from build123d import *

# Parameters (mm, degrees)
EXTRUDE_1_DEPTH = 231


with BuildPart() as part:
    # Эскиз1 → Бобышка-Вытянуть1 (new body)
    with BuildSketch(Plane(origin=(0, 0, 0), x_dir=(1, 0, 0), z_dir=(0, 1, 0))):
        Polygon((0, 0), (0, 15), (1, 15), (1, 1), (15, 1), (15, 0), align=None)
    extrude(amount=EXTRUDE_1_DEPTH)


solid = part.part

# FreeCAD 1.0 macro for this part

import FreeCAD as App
import Part
import Sketcher

V = App.Vector
Q = App.Units.Quantity


def add_polygon(sketch, points):
    """Adds a closed chain of lines whose ends are joined by coincident constraints."""
    first, n = sketch.GeometryCount, len(points)
    for a, b in zip(points, points[1:] + points[:1]):
        sketch.addGeometry(Part.LineSegment(App.Vector(*a, 0), App.Vector(*b, 0)), False)
    for i in range(n):
        sketch.addConstraint(Sketcher.Constraint("Coincident", first + i, 2, first + (i + 1) % n, 1))

doc = App.newDocument("Part")
params = doc.addObject("Spreadsheet::Sheet", "Params")
for row, (alias, value) in enumerate([
    ("sketch1_width", "15 mm"),
    ("sketch1_width2", "14 mm"),
    ("pad1_length", "231 mm"),
], start=1):
    params.set(f"A{row}", alias)
    params.set(f"B{row}", "=" + value)
    params.setAlias(f"B{row}", alias)

body = doc.addObject("PartDesign::Body", "Body")

sketch1 = body.newObject("Sketcher::SketchObject", "Sketch")
sketch1.AttachmentSupport = (doc.getObject("XZ_Plane"), [""])
sketch1.MapMode = "FlatFace"
add_polygon(sketch1, [(0, -15), (0, 0), (15, 0), (15, -1), (1, -1), (1, -15)])
sketch1.addConstraint([
    Sketcher.Constraint("Vertical", 0),
    Sketcher.Constraint("Horizontal", 1),
    Sketcher.Constraint("Vertical", 2),
    Sketcher.Constraint("Horizontal", 3),
    Sketcher.Constraint("Vertical", 4),
    Sketcher.Constraint("Horizontal", 5),
    Sketcher.Constraint("Coincident", 0, 2, -1, 1),
    Sketcher.Constraint("Equal", 1, 0),
    Sketcher.Constraint("Equal", 5, 2),
    Sketcher.Constraint("DistanceX", 1, 1, 1, 2, Q("15 mm")),
    Sketcher.Constraint("DistanceX", 3, 2, 3, 1, Q("14 mm")),
])
sketch1.setExpression("Constraints[15]", "Params.sketch1_width")
sketch1.setExpression("Constraints[16]", "Params.sketch1_width2")
pad1 = body.newObject("PartDesign::Pad", "Pad")
pad1.Profile = sketch1
pad1.setExpression("Length", "Params.pad1_length")
pad1.Reversed = True

doc.recompute()
